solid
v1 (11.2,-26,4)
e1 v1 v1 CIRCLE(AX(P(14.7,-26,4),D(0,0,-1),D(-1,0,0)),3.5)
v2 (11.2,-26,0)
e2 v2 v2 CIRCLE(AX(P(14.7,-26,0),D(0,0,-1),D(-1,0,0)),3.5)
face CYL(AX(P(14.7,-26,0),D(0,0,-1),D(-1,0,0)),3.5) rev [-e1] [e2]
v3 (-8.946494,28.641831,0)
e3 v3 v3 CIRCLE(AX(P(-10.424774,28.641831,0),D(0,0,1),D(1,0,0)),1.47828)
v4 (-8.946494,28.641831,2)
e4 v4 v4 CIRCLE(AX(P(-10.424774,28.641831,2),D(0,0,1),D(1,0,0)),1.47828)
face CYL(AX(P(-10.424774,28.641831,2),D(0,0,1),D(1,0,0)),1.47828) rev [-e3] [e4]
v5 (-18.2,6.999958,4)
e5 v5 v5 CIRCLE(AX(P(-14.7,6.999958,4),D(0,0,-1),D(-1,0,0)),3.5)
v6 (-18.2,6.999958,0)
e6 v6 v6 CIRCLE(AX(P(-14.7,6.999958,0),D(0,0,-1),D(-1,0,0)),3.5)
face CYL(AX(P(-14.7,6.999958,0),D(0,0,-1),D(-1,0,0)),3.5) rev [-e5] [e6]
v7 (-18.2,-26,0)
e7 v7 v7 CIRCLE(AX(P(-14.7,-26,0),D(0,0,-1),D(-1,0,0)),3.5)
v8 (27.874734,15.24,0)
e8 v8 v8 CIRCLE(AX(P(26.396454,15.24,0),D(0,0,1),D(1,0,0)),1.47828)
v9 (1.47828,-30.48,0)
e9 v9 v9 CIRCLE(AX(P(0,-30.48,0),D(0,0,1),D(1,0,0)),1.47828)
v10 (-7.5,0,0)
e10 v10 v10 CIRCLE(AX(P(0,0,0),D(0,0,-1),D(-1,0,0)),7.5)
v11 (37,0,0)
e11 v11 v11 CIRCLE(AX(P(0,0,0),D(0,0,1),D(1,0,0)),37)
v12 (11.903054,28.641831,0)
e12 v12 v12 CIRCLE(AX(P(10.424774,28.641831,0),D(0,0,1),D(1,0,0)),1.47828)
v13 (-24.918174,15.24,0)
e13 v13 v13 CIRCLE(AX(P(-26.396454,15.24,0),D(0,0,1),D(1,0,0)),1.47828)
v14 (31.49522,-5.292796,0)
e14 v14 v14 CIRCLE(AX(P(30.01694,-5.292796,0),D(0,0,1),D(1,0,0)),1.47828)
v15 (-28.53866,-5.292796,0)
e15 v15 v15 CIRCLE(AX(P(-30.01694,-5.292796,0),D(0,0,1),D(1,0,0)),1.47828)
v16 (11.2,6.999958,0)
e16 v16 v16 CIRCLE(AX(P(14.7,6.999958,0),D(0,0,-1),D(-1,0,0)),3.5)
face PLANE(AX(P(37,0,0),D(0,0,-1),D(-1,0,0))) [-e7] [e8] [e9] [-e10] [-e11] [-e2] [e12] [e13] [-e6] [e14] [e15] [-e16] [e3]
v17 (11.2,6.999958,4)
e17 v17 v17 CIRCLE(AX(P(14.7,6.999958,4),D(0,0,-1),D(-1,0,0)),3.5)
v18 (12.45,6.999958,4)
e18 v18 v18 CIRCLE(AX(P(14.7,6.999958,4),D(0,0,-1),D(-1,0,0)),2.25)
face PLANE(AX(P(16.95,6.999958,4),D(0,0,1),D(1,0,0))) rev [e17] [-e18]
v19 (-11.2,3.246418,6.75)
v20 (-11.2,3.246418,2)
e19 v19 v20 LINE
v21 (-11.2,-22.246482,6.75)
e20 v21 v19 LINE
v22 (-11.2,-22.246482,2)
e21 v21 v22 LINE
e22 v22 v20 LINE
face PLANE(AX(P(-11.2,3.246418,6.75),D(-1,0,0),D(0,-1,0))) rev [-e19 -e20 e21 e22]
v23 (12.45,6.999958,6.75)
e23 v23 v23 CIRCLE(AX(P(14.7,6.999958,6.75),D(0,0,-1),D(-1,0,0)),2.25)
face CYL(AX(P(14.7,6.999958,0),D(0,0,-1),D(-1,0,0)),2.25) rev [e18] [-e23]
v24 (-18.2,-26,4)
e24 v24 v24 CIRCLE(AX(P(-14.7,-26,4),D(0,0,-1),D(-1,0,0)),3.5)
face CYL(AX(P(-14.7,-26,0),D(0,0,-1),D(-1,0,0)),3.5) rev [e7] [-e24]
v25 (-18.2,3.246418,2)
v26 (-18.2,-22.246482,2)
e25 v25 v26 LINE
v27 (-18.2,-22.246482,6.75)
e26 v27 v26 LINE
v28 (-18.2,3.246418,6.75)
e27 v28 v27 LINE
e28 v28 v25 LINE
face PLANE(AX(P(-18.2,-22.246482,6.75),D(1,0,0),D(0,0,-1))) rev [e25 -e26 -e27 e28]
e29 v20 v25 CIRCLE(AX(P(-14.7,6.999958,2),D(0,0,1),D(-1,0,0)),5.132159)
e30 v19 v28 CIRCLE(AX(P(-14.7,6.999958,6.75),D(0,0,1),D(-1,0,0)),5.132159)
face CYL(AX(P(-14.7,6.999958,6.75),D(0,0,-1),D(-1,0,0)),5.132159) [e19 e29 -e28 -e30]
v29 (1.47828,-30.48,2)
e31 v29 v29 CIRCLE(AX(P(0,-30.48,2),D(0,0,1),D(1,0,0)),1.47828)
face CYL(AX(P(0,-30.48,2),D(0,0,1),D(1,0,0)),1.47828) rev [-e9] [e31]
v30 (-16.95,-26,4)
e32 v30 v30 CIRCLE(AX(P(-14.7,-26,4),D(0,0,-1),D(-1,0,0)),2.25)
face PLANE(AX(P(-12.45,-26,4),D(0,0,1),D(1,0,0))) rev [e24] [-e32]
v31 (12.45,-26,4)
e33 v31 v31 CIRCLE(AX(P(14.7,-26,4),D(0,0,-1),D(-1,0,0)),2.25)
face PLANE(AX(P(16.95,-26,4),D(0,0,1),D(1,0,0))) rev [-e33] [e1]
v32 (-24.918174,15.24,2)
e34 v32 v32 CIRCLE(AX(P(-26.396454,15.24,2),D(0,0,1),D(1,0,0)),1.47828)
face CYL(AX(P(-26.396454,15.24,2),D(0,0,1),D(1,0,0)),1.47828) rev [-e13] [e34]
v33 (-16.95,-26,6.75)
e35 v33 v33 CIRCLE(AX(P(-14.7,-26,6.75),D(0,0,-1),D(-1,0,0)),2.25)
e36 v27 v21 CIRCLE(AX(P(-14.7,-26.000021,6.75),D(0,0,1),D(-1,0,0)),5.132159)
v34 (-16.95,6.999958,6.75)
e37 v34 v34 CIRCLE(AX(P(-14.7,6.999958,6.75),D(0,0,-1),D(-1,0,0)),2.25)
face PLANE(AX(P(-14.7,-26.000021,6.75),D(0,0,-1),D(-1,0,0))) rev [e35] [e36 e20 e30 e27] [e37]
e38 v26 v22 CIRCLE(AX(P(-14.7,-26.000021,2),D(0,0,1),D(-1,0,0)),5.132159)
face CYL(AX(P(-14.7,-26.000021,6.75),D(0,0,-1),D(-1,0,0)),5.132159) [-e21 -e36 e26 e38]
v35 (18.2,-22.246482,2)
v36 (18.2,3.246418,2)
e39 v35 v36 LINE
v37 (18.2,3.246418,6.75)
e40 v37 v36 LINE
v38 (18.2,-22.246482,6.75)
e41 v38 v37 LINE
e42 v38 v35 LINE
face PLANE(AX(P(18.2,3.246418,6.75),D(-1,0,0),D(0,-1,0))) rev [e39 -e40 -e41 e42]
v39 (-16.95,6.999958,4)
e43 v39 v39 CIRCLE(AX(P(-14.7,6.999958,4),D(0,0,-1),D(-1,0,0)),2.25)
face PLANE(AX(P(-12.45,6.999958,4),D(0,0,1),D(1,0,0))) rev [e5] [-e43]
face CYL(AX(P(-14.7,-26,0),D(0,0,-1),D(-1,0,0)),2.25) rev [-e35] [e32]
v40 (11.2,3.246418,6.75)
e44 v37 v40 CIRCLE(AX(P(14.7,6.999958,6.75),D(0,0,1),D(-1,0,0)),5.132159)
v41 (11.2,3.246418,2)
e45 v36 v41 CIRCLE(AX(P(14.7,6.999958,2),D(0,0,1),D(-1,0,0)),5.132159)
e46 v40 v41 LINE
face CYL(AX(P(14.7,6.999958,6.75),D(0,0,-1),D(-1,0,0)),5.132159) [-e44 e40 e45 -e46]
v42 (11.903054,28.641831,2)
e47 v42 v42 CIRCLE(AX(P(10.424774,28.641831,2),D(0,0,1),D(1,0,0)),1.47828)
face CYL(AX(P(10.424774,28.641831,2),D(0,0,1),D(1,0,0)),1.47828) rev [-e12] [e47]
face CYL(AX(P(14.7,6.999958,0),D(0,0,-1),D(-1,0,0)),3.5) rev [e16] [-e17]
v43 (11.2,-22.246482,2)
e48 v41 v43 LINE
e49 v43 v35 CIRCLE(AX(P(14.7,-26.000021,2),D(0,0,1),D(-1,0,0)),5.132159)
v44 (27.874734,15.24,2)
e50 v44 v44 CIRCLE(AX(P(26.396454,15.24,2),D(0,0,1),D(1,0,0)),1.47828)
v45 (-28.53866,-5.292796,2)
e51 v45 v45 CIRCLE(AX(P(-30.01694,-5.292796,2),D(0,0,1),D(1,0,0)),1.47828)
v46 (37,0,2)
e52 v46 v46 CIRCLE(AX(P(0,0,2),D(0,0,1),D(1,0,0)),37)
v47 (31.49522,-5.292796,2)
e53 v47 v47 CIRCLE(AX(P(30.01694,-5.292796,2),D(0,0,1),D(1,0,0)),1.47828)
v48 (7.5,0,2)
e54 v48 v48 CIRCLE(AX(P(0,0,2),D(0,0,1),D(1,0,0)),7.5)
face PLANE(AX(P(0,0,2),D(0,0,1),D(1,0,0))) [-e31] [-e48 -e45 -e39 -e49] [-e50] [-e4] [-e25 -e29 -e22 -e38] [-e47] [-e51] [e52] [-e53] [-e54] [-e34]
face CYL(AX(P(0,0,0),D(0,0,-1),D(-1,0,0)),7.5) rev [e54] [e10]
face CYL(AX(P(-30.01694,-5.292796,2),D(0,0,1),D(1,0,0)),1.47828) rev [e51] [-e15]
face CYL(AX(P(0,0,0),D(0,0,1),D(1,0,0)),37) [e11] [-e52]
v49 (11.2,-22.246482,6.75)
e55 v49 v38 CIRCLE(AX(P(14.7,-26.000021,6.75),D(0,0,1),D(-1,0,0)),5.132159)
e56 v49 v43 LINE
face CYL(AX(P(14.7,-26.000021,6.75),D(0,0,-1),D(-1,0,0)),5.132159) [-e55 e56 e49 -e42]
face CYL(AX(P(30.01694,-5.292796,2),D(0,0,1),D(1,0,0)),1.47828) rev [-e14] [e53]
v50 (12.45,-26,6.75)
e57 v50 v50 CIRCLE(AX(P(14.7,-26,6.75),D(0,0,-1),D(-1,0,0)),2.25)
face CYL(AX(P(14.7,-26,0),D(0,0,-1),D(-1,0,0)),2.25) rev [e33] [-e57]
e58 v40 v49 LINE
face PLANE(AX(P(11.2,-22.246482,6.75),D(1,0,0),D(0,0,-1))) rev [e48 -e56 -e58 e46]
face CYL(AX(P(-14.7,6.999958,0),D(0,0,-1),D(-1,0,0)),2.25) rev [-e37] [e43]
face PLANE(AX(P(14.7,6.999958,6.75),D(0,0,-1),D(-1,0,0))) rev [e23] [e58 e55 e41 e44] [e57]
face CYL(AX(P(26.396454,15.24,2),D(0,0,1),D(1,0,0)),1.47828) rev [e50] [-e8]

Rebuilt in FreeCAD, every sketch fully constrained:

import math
import FreeCAD as App
import Part
import Sketcher

V = App.Vector
Q = App.Units.Quantity

doc = App.newDocument("Part")
body = doc.addObject("PartDesign::Body", "Body")

sketch1 = doc.addObject("Sketcher::SketchObject", "Sketch")
body.addObject(sketch1)
sketch1.AttachmentSupport = (doc.XZ_Plane, [""])
sketch1.MapMode = "FlatFace"
sketch1.addGeometry([
    Part.LineSegment(V(0, 0, 0), V(0, 2, 0)),
    Part.LineSegment(V(0, 2, 0), V(37, 2, 0)),
    Part.LineSegment(V(37, 2, 0), V(37, 0, 0)),
    Part.LineSegment(V(37, 0, 0), V(0, 0, 0)),
], False)
sketch1.addConstraint([
    Sketcher.Constraint("Coincident", 0, 2, 1, 1),
    Sketcher.Constraint("Coincident", 1, 2, 2, 1),
    Sketcher.Constraint("Coincident", 2, 2, 3, 1),
    Sketcher.Constraint("Coincident", 3, 2, 0, 1),
    Sketcher.Constraint("Vertical", 0),
    Sketcher.Constraint("Horizontal", 1),
    Sketcher.Constraint("Vertical", 2),
    Sketcher.Constraint("Horizontal", 3),
    Sketcher.Constraint("Coincident", 3, 2, -1, 1),
    Sketcher.Constraint("DistanceX", 1, 1, 1, 2, Q("37 mm")),
    Sketcher.Constraint("DistanceY", 0, 1, 0, 2, Q("2 mm")),
])
revolution = doc.addObject("PartDesign::Revolution", "Revolution")
body.addObject(revolution)
revolution.Profile = sketch1
revolution.ReferenceAxis = (sketch1, ["V_Axis"])
revolution.Angle = 360

sketch2 = doc.addObject("Sketcher::SketchObject", "Sketch001")
body.addObject(sketch2)
sketch2.AttachmentSupport = (doc.XY_Plane, [""])
sketch2.MapMode = "FlatFace"
sketch2.AttachmentOffset = App.Placement(V(0, 0, 2), App.Rotation())
sketch2.addGeometry([
    Part.LineSegment(V(-18, 3, 0), V(-18, -22, 0)),
    Part.ArcOfCircle(Part.Circle(V(-15, -26, 0), V(0, 0, 1), 5), math.radians(133), math.radians(407)),
    Part.LineSegment(V(-11, -22, 0), V(-11, 3, 0)),
    Part.ArcOfCircle(Part.Circle(V(-15, 7, 0), V(0, 0, 1), 5), math.radians(-47), math.radians(227)),
], False)
sketch2.addConstraint([
    Sketcher.Constraint("Coincident", 0, 2, 1, 1),
    Sketcher.Constraint("Coincident", 1, 2, 2, 1),
    Sketcher.Constraint("Coincident", 2, 2, 3, 1),
    Sketcher.Constraint("Coincident", 3, 2, 0, 1),
    Sketcher.Constraint("Vertical", 0),
    Sketcher.Constraint("Vertical", 2),
    Sketcher.Constraint("Equal", 1, 3),
    Sketcher.Constraint("Horizontal", 0, 2, 1, 2),
    Sketcher.Constraint("Horizontal", 2, 2, 3, 2),
    Sketcher.Constraint("DistanceX", 0, 2, 1, 2, Q("7 mm")),
    Sketcher.Constraint("DistanceX", 1, 3, -1, 1, Q("14.7 mm")),
    Sketcher.Constraint("Radius", 1, Q("5.132159 mm")),
    Sketcher.Constraint("DistanceY", 0, 2, 0, 1, Q("25.4929 mm")),
    Sketcher.Constraint("DistanceY", 1, 3, -1, 1, Q("26.000021 mm")),
])
pad1 = doc.addObject("PartDesign::Pad", "Pad")
body.addObject(pad1)
pad1.Profile = sketch2
pad1.Length = 4.75

sketch3 = doc.addObject("Sketcher::SketchObject", "Sketch002")
body.addObject(sketch3)
sketch3.AttachmentSupport = (doc.XY_Plane, [""])
sketch3.MapMode = "FlatFace"
sketch3.AttachmentOffset = App.Placement(V(0, 0, 2), App.Rotation())
sketch3.addGeometry([
    Part.LineSegment(V(18, -22, 0), V(18, 3, 0)),
    Part.ArcOfCircle(Part.Circle(V(15, 7, 0), V(0, 0, 1), 5), math.radians(-47), math.radians(227)),
    Part.LineSegment(V(11, 3, 0), V(11, -22, 0)),
    Part.ArcOfCircle(Part.Circle(V(15, -26, 0), V(0, 0, 1), 5), math.radians(133), math.radians(407)),
], False)
sketch3.addConstraint([
    Sketcher.Constraint("Coincident", 0, 2, 1, 1),
    Sketcher.Constraint("Coincident", 1, 2, 2, 1),
    Sketcher.Constraint("Coincident", 2, 2, 3, 1),
    Sketcher.Constraint("Coincident", 3, 2, 0, 1),
    Sketcher.Constraint("Vertical", 0),
    Sketcher.Constraint("Vertical", 2),
    Sketcher.Constraint("Equal", 1, 3),
    Sketcher.Constraint("Horizontal", 0, 2, 1, 2),
    Sketcher.Constraint("Horizontal", 2, 2, 3, 2),
    Sketcher.Constraint("DistanceX", 1, 2, 0, 2, Q("7 mm")),
    Sketcher.Constraint("DistanceX", -1, 1, 1, 3, Q("14.7 mm")),
    Sketcher.Constraint("Radius", 1, Q("5.132159 mm")),
    Sketcher.Constraint("DistanceY", 0, 1, 0, 2, Q("25.4929 mm")),
    Sketcher.Constraint("DistanceY", 3, 3, -1, 1, Q("26.000021 mm")),
])
pad2 = doc.addObject("PartDesign::Pad", "Pad001")
body.addObject(pad2)
pad2.Profile = sketch3
pad2.Length = 4.75

sketch4 = doc.addObject("Sketcher::SketchObject", "Sketch003")
body.addObject(sketch4)
sketch4.AttachmentSupport = (doc.XY_Plane, [""])
sketch4.MapMode = "FlatFace"
sketch4.AttachmentOffset = App.Placement(V(0, 0, 2), App.Rotation())
sketch4.addGeometry([
    Part.Circle(V(-30, -5.3, 0), V(0, 0, 1), 1.5),
    Part.Circle(V(-26.4, 15.2, 0), V(0, 0, 1), 1.5),
    Part.Circle(V(-10.4, 28.6, 0), V(0, 0, 1), 1.5),
    Part.Circle(V(10.4, 28.6, 0), V(0, 0, 1), 1.5),
    Part.Circle(V(26.4, 15.2, 0), V(0, 0, 1), 1.5),
    Part.Circle(V(30, -5.3, 0), V(0, 0, 1), 1.5),
    Part.Circle(V(0, -30.5, 0), V(0, 0, 1), 1.5),
], False)
sketch4.addConstraint([
    Sketcher.Constraint("Equal", 0, 1),
    Sketcher.Constraint("Equal", 1, 2),
    Sketcher.Constraint("Equal", 2, 3),
    Sketcher.Constraint("Equal", 3, 4),
    Sketcher.Constraint("Equal", 4, 5),
    Sketcher.Constraint("Equal", 5, 6),
    Sketcher.Constraint("Symmetric", 2, 3, 3, 3, -2),
    Sketcher.Constraint("Symmetric", 1, 3, 4, 3, -2),
    Sketcher.Constraint("Symmetric", 0, 3, 5, 3, -2),
    Sketcher.Constraint("PointOnObject", 6, 3, -2),
    Sketcher.Constraint("Diameter", 0, Q("2.95656 mm")),
    Sketcher.Constraint("DistanceY", -1, 1, 1, 3, Q("15.24 mm")),
    Sketcher.Constraint("DistanceY", 6, 3, -1, 1, Q("30.48 mm")),
    Sketcher.Constraint("DistanceX", 0, 3, -1, 1, Q("30.01694 mm")),
    Sketcher.Constraint("DistanceY", -1, 1, 2, 3, Q("28.641831 mm")),
    Sketcher.Constraint("DistanceX", 1, 3, 2, 3, Q("15.97168 mm")),
    Sketcher.Constraint("DistanceX", 1, 3, 3, 3, Q("36.821228 mm")),
    Sketcher.Constraint("DistanceY", 0, 3, -1, 1, Q("5.292796 mm")),
])
doc.recompute()
hole = doc.addObject("PartDesign::Hole", "Hole")
body.addObject(hole)
hole.Profile = sketch4
hole.ThreadType = "None"
hole.Diameter = 2.95656
hole.DepthType = "Dimension"
hole.Depth = 2
hole.DrillPoint = "Flat"

sketch5 = doc.addObject("Sketcher::SketchObject", "Sketch004")
body.addObject(sketch5)
sketch5.AttachmentSupport = (doc.XY_Plane, [""])
sketch5.MapMode = "FlatFace"
sketch5.addGeometry(Part.Circle(V(0, 0, 0), V(0, 0, 1), 8), False)
sketch5.addConstraint([
    Sketcher.Constraint("Coincident", 0, 3, -1, 1),
    Sketcher.Constraint("Diameter", 0, Q("15 mm")),
])
doc.recompute()
hole2 = doc.addObject("PartDesign::Hole", "Hole001")
body.addObject(hole2)
hole2.Profile = sketch5
hole2.ThreadType = "None"
hole2.Diameter = 15
hole2.DepthType = "Dimension"
hole2.Depth = 6.75
hole2.DrillPoint = "Flat"
hole2.Reversed = True

sketch6 = doc.addObject("Sketcher::SketchObject", "Sketch005")
body.addObject(sketch6)
sketch6.AttachmentSupport = (doc.XY_Plane, [""])
sketch6.MapMode = "FlatFace"
sketch6.addGeometry([
    Part.Circle(V(-14.7, -26, 0), V(0, 0, 1), 2.2),
    Part.Circle(V(14.7, 7, 0), V(0, 0, 1), 2.2),
    Part.Circle(V(14.7, -26, 0), V(0, 0, 1), 2.2),
    Part.Circle(V(-14.7, 7, 0), V(0, 0, 1), 2.2),
], False)
sketch6.addConstraint([
    Sketcher.Constraint("Equal", 0, 1),
    Sketcher.Constraint("Equal", 1, 2),
    Sketcher.Constraint("Equal", 2, 3),
    Sketcher.Constraint("Symmetric", 0, 3, 2, 3, -2),
    Sketcher.Constraint("Symmetric", 1, 3, 3, 3, -2),
    Sketcher.Constraint("Vertical", 1, 3, 2, 3),
    Sketcher.Constraint("Diameter", 0, Q("4.5 mm")),
    Sketcher.Constraint("DistanceY", 0, 3, -1, 1, Q("26 mm")),
    Sketcher.Constraint("DistanceX", 0, 3, -1, 1, Q("14.7 mm")),
    Sketcher.Constraint("DistanceY", -1, 1, 1, 3, Q("6.999958 mm")),
])
doc.recompute()
hole3 = doc.addObject("PartDesign::Hole", "Hole002")
body.addObject(hole3)
hole3.Profile = sketch6
hole3.ThreadType = "None"
hole3.Diameter = 4.5
hole3.DepthType = "Dimension"
hole3.Depth = 6.75
hole3.DrillPoint = "Flat"
hole3.HoleCutType = "Counterbore"
hole3.HoleCutDiameter = 7
hole3.HoleCutDepth = 4
hole3.Reversed = True

doc.recompute()
